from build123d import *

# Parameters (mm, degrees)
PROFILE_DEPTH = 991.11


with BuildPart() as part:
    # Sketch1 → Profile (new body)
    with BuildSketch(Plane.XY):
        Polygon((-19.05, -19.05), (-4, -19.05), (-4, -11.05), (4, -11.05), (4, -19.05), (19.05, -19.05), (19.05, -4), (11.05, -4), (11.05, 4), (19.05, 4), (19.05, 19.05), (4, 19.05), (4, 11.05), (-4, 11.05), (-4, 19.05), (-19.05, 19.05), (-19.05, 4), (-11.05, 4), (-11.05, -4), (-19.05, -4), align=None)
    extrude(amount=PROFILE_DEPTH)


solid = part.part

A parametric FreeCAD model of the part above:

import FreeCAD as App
import Part
import Sketcher

doc = App.newDocument("Part")
body = doc.addObject("PartDesign::Body", "Body")

# Sketch on XY plane
sketch1 = doc.addObject("Sketcher::SketchObject", "Sketch")
body.addObject(sketch1)
sketch1.AttachmentSupport = (doc.XY_Plane, [""])
sketch1.MapMode = "FlatFace"
sketch1.addGeometry([
    Part.LineSegment(App.Vector(-19.05, -19.05, 0), App.Vector(-4, -19.05, 0)),  # 0
    Part.LineSegment(App.Vector(-4, -19.05, 0), App.Vector(-4, -11.05, 0)),  # 1
    Part.LineSegment(App.Vector(-4, -11.05, 0), App.Vector(4, -11.05, 0)),  # 2
    Part.LineSegment(App.Vector(4, -11.05, 0), App.Vector(4, -19.05, 0)),  # 3
    Part.LineSegment(App.Vector(4, -19.05, 0), App.Vector(19.05, -19.05, 0)),  # 4
    Part.LineSegment(App.Vector(19.05, -19.05, 0), App.Vector(19.05, -4, 0)),  # 5
    Part.LineSegment(App.Vector(19.05, -4, 0), App.Vector(11.05, -4, 0)),  # 6
    Part.LineSegment(App.Vector(11.05, -4, 0), App.Vector(11.05, 4, 0)),  # 7
    Part.LineSegment(App.Vector(11.05, 4, 0), App.Vector(19.05, 4, 0)),  # 8
    Part.LineSegment(App.Vector(19.05, 4, 0), App.Vector(19.05, 19.05, 0)),  # 9
    Part.LineSegment(App.Vector(19.05, 19.05, 0), App.Vector(4, 19.05, 0)),  # 10
    Part.LineSegment(App.Vector(4, 19.05, 0), App.Vector(4, 11.05, 0)),  # 11
    Part.LineSegment(App.Vector(4, 11.05, 0), App.Vector(-4, 11.05, 0)),  # 12
    Part.LineSegment(App.Vector(-4, 11.05, 0), App.Vector(-4, 19.05, 0)),  # 13
    Part.LineSegment(App.Vector(-4, 19.05, 0), App.Vector(-19.05, 19.05, 0)),  # 14
    Part.LineSegment(App.Vector(-19.05, 19.05, 0), App.Vector(-19.05, 4, 0)),  # 15
    Part.LineSegment(App.Vector(-19.05, 4, 0), App.Vector(-11.05, 4, 0)),  # 16
    Part.LineSegment(App.Vector(-11.05, 4, 0), App.Vector(-11.05, -4, 0)),  # 17
    Part.LineSegment(App.Vector(-11.05, -4, 0), App.Vector(-19.05, -4, 0)),  # 18
    Part.LineSegment(App.Vector(-19.05, -4, 0), App.Vector(-19.05, -19.05, 0)),  # 19
], False)
sketch1.addConstraint([
    Sketcher.Constraint("Coincident", 0, 2, 1, 1),
    Sketcher.Constraint("Coincident", 1, 2, 2, 1),
    Sketcher.Constraint("Coincident", 2, 2, 3, 1),
    Sketcher.Constraint("Coincident", 3, 2, 4, 1),
    Sketcher.Constraint("Coincident", 4, 2, 5, 1),
    Sketcher.Constraint("Coincident", 5, 2, 6, 1),
    Sketcher.Constraint("Coincident", 6, 2, 7, 1),
    Sketcher.Constraint("Coincident", 7, 2, 8, 1),
    Sketcher.Constraint("Coincident", 8, 2, 9, 1),
    Sketcher.Constraint("Coincident", 9, 2, 10, 1),
    Sketcher.Constraint("Coincident", 10, 2, 11, 1),
    Sketcher.Constraint("Coincident", 11, 2, 12, 1),
    Sketcher.Constraint("Coincident", 12, 2, 13, 1),
    Sketcher.Constraint("Coincident", 13, 2, 14, 1),
    Sketcher.Constraint("Coincident", 14, 2, 15, 1),
    Sketcher.Constraint("Coincident", 15, 2, 16, 1),
    Sketcher.Constraint("Coincident", 16, 2, 17, 1),
    Sketcher.Constraint("Coincident", 17, 2, 18, 1),
    Sketcher.Constraint("Coincident", 18, 2, 19, 1),
    Sketcher.Constraint("Coincident", 19, 2, 0, 1),
    Sketcher.Constraint("Horizontal", 0),
    Sketcher.Constraint("Vertical", 1),
    Sketcher.Constraint("Horizontal", 2),
    Sketcher.Constraint("Vertical", 3),
    Sketcher.Constraint("Horizontal", 4),
    Sketcher.Constraint("Vertical", 5),
    Sketcher.Constraint("Horizontal", 6),
    Sketcher.Constraint("Vertical", 7),
    Sketcher.Constraint("Horizontal", 8),
    Sketcher.Constraint("Vertical", 9),
    Sketcher.Constraint("Horizontal", 10),
    Sketcher.Constraint("Vertical", 11),
    Sketcher.Constraint("Horizontal", 12),
    Sketcher.Constraint("Vertical", 13),
    Sketcher.Constraint("Horizontal", 14),
    Sketcher.Constraint("Vertical", 15),
    Sketcher.Constraint("Horizontal", 16),
    Sketcher.Constraint("Vertical", 17),
    Sketcher.Constraint("Horizontal", 18),
    Sketcher.Constraint("Vertical", 19),
    Sketcher.Constraint("Symmetric", 0, 2, 10, 2, -1, 1),
    Sketcher.Constraint("Symmetric", 2, 2, 12, 2, -1, 1),
    Sketcher.Constraint("Symmetric", 4, 2, 14, 2, -1, 1),
    Sketcher.Constraint("Symmetric", 6, 2, 16, 2, -1, 1),
    Sketcher.Constraint("Symmetric", 8, 2, 18, 2, -1, 1),
    Sketcher.Constraint("Symmetric", 0, 2, 3, 2, -2),
    Sketcher.Constraint("Symmetric", 8, 2, 15, 2, -2),
    Sketcher.Constraint("Equal", 2, 6),
    Sketcher.Constraint("Equal", 18, 1),
    Sketcher.Constraint("Equal", 14, 5),
    Sketcher.Constraint("Equal", 3, 7),
    Sketcher.Constraint("DistanceX", 2, 1, 2, 2, 8.0),
    Sketcher.Constraint("DistanceX", 0, 1, 0, 2, 15.05),
])
pad1 = doc.addObject("PartDesign::Pad", "Pad")
body.addObject(pad1)
pad1.Profile = sketch1
pad1.Length = 991.11

doc.recompute()
